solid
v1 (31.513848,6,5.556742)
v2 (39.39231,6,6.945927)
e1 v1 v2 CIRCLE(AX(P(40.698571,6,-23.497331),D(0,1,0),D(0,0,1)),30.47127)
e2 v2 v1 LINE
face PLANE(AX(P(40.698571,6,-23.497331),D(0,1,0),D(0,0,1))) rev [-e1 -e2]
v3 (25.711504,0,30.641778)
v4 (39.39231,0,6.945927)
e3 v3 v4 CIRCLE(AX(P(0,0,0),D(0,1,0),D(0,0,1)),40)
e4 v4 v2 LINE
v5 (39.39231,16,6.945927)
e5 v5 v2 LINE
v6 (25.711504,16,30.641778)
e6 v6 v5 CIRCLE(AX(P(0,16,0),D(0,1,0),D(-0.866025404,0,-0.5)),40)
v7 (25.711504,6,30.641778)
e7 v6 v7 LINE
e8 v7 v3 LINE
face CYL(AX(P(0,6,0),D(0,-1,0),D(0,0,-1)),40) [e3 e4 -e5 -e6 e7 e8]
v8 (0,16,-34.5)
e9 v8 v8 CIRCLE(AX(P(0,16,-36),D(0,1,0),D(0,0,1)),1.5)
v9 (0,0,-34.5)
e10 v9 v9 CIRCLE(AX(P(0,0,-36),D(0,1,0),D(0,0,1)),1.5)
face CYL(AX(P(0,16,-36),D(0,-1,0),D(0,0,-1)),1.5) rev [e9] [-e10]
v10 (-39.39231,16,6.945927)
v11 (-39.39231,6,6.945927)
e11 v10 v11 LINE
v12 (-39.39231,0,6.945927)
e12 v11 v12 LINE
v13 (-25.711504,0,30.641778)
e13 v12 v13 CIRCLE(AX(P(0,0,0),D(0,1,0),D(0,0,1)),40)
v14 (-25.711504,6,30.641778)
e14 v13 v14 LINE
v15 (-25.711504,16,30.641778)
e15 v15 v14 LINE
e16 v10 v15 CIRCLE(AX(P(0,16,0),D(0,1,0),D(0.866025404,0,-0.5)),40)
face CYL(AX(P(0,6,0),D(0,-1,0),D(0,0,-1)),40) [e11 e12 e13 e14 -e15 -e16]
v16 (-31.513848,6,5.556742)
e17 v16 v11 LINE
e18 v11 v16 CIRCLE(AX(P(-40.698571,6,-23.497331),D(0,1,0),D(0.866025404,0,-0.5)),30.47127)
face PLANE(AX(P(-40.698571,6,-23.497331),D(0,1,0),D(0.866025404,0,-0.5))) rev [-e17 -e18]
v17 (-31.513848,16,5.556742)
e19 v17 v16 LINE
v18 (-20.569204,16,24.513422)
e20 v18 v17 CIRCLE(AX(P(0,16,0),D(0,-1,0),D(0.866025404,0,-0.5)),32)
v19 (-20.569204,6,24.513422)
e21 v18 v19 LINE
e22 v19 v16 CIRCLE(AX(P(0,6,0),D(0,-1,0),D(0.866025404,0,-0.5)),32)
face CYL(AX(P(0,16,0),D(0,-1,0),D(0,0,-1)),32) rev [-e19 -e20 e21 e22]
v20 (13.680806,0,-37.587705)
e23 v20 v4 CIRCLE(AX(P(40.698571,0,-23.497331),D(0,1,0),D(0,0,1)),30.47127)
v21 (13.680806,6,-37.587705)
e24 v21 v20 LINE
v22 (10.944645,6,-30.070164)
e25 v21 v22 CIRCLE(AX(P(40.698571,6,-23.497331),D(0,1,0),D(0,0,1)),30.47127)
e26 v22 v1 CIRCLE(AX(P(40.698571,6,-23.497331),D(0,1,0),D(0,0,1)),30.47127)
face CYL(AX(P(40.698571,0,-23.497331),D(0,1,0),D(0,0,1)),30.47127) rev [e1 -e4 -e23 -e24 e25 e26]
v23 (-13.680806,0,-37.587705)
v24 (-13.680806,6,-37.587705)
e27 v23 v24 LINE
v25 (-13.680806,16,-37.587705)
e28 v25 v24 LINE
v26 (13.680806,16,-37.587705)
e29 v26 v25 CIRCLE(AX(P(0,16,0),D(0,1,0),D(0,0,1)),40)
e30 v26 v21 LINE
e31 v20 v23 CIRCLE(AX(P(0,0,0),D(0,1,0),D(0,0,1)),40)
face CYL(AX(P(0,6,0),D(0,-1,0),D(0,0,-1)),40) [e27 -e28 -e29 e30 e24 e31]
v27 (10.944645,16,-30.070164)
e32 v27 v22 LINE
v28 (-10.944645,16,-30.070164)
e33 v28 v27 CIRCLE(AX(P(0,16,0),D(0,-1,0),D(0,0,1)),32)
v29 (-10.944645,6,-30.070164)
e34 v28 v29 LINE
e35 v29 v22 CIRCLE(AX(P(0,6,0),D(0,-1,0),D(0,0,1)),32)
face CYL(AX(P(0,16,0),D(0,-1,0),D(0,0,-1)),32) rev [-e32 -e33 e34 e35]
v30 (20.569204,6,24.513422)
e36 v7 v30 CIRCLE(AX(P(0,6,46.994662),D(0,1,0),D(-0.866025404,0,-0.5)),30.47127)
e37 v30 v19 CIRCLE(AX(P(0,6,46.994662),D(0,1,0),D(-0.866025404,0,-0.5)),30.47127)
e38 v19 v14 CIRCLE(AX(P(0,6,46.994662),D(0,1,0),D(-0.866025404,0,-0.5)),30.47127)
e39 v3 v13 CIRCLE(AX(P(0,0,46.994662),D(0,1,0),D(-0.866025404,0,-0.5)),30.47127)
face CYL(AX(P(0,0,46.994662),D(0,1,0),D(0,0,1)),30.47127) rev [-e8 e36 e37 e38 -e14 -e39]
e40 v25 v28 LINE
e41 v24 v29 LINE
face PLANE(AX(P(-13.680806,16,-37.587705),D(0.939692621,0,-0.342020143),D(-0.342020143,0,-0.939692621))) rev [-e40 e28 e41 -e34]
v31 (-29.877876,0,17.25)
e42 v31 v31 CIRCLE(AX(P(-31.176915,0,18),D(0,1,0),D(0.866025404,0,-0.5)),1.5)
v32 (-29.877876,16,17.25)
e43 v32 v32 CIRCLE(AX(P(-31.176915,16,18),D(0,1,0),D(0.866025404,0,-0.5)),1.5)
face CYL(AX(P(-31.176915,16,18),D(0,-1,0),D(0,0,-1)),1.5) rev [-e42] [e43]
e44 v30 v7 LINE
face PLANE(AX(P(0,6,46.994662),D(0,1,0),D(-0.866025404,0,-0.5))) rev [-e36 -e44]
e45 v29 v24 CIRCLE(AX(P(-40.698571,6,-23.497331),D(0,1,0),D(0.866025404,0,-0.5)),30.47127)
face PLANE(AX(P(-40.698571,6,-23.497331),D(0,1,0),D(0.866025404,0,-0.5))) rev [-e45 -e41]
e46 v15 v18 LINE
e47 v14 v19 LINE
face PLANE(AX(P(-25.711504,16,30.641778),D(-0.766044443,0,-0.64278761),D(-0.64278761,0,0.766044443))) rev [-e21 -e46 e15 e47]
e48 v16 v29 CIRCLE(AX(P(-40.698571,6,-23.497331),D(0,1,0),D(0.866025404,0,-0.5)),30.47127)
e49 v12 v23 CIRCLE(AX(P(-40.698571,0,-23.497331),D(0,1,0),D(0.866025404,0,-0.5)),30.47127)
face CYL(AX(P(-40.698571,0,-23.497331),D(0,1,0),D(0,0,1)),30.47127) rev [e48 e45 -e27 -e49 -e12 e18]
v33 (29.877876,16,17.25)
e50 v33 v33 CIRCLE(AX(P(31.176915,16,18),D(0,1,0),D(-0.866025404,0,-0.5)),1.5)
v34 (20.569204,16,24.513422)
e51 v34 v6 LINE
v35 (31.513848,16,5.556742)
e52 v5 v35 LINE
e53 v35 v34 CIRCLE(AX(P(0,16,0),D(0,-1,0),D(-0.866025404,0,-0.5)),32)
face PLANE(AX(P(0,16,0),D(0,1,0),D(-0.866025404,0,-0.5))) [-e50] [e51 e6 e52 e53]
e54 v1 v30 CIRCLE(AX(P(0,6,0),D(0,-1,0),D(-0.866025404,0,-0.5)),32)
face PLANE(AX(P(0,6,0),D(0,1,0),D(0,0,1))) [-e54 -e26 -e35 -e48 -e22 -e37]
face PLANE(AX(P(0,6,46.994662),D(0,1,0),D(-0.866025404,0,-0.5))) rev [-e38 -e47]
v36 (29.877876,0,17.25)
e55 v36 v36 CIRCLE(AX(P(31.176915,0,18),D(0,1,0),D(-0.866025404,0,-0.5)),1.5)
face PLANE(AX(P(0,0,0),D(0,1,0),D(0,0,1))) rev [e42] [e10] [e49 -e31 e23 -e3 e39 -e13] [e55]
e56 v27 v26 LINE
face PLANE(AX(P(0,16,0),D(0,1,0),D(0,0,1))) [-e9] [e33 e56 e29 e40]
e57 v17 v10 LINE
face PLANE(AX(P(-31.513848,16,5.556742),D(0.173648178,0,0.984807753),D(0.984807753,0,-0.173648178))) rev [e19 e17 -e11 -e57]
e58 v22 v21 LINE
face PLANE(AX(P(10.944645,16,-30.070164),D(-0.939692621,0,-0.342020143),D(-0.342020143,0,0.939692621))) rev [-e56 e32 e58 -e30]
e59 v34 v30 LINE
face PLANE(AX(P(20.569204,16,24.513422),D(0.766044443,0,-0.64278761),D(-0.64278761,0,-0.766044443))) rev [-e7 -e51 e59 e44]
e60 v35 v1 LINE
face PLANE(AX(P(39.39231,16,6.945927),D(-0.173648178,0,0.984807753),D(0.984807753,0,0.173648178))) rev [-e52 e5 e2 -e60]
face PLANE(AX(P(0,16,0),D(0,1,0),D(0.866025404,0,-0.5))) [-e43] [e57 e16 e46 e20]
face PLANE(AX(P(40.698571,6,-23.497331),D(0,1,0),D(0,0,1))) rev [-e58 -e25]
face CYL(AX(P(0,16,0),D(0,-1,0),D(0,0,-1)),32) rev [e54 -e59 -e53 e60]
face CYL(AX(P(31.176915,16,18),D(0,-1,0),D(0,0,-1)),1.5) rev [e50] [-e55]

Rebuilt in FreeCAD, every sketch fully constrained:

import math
import FreeCAD as App
import Part
import Sketcher
from FreeCAD import Vector
Q = App.Units.Quantity

doc = App.newDocument("Part")
body = doc.addObject("PartDesign::Body", "Body")

sketch1 = body.newObject("Sketcher::SketchObject", "Sketch")
sketch1.AttachmentSupport = (doc.getObject("XZ_Plane"), [""])
sketch1.MapMode = "FlatFace"
sketch1.addGeometry(Part.Circle(Vector(0, 0, 0), Vector(0, 0, 1), 40), False)
sketch1.addConstraint(Sketcher.Constraint("Coincident", 0, 3, -1, 1))
sketch1.addConstraint(Sketcher.Constraint("Diameter", 0, 80.0))
pad1 = body.newObject("PartDesign::Pad", "Pad")
pad1.Profile = sketch1
pad1.Length = 6
pad1.Reversed = True

sketch2 = body.newObject("Sketcher::SketchObject", "Sketch001")
sketch2.AttachmentSupport = (doc.getObject("XZ_Plane"), [""])
sketch2.MapMode = "FlatFace"
sketch2.AttachmentOffset = App.Placement(Vector(0, 0, -6), App.Rotation())
sketch2.addGeometry(Part.LineSegment(Vector(-13.7, -37.6, 0), Vector(-10.9, -30.1, 0)), False)
sketch2.addGeometry(Part.ArcOfCircle(Part.Circle(Vector(0, 0, 0), Vector(0, 0, 1), 32), math.radians(-110), math.radians(-70)), False)
sketch2.addGeometry(Part.LineSegment(Vector(10.9, -30.1, 0), Vector(13.7, -37.6, 0)), False)
sketch2.addGeometry(Part.ArcOfCircle(Part.Circle(Vector(0, 0, 0), Vector(0, 0, 1), 40), math.radians(-110), math.radians(-70)), False)
sketch2.addGeometry(Part.Circle(Vector(0, -36, 0), Vector(0, 0, 1), 1.5), False)
sketch2.addConstraint(Sketcher.Constraint("Coincident", 0, 2, 1, 1))
sketch2.addConstraint(Sketcher.Constraint("Coincident", 1, 2, 2, 1))
sketch2.addConstraint(Sketcher.Constraint("Coincident", 2, 2, 3, 2))
sketch2.addConstraint(Sketcher.Constraint("Coincident", 3, 1, 0, 1))
sketch2.addConstraint(Sketcher.Constraint("Coincident", 1, 3, -1, 1))
sketch2.addConstraint(Sketcher.Constraint("Coincident", 3, 3, -1, 1))
sketch2.addConstraint(Sketcher.Constraint("PointOnObject", 4, 3, -2))
sketch2.addConstraint(Sketcher.Constraint("Horizontal", 0, 2, 1, 2))
sketch2.addConstraint(Sketcher.Constraint("Horizontal", 2, 2, 3, 1))
sketch2.addConstraint(Sketcher.Constraint("Diameter", 4, 3.0))
sketch2.addConstraint(Sketcher.Constraint("Radius", 1, 32.0))
sketch2.addConstraint(Sketcher.Constraint("Radius", 3, 40.0))
sketch2.addConstraint(Sketcher.Constraint("Angle", 0, Q("70 deg")))
sketch2.addConstraint(Sketcher.Constraint("DistanceY", 4, 3, -1, 1, 36.0))
sketch2.addConstraint(Sketcher.Constraint("DistanceX", 0, 2, 1, 2, 21.889289))
pad2 = body.newObject("PartDesign::Pad", "Pad001")
pad2.Profile = sketch2
pad2.Length = 10
pad2.Reversed = True

sketch3 = body.newObject("Sketcher::SketchObject", "Sketch002")
sketch3.AttachmentSupport = (doc.getObject("XZ_Plane"), [""])
sketch3.MapMode = "FlatFace"
sketch3.AttachmentOffset = App.Placement(Vector(0, 0, -16), App.Rotation())
sketch3.addGeometry(Part.Circle(Vector(0, -36, 0), Vector(0, 0, 1), 1.5), False)
sketch3.addConstraint(Sketcher.Constraint("PointOnObject", 0, 3, -2))
sketch3.addConstraint(Sketcher.Constraint("Diameter", 0, 3.0))
sketch3.addConstraint(Sketcher.Constraint("DistanceY", 0, 3, -1, 1, 36.0))
pocket1 = body.newObject("PartDesign::Pocket", "Pocket")
pocket1.Profile = sketch3
pocket1.Type = "ThroughAll"
pocket1.Reversed = True
doc.recompute()

polarpattern = body.newObject("PartDesign::PolarPattern", "PolarPattern")
polarpattern.Originals = [pad2, pocket1]
polarpattern.Axis = (doc.getObject("Y_Axis"), [""])
polarpattern.Angle = 360
polarpattern.Occurrences = 3
body.Tip = polarpattern

sketch4 = body.newObject("Sketcher::SketchObject", "Sketch003")
sketch4.AttachmentSupport = (doc.getObject("XZ_Plane"), [""])
sketch4.MapMode = "FlatFace"
sketch4.AttachmentOffset = App.Placement(Vector(0, 0, -6), App.Rotation())
sketch4.addGeometry(Part.Circle(Vector(41, -23, 0), Vector(0, 0, 1), 30), False)
sketch4.addConstraint(Sketcher.Constraint("Diameter", 0, 60.94254))
sketch4.addConstraint(Sketcher.Constraint("DistanceX", -1, 1, 0, 3, 40.698571))
sketch4.addConstraint(Sketcher.Constraint("DistanceY", 0, 3, -1, 1, 23.497331))
pocket2 = body.newObject("PartDesign::Pocket", "Pocket001")
pocket2.Profile = sketch4
pocket2.Type = "ThroughAll"
pocket2.Reversed = True
doc.recompute()

polarpattern2 = body.newObject("PartDesign::PolarPattern", "PolarPattern001")
polarpattern2.Originals = [pocket2]
polarpattern2.Axis = (doc.getObject("Y_Axis"), [""])
polarpattern2.Angle = 360
polarpattern2.Occurrences = 3
body.Tip = polarpattern2

doc.recompute()
